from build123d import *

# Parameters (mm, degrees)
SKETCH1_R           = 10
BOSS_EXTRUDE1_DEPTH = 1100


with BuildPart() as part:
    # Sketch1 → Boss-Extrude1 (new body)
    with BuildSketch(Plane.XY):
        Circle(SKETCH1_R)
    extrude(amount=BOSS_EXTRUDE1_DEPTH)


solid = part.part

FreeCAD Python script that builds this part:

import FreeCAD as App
import Part
import Sketcher
Q = App.Units.Quantity

doc = App.newDocument("Part")
body = doc.addObject("PartDesign::Body", "Body")

sketch1 = doc.addObject("Sketcher::SketchObject", "Sketch")
body.addObject(sketch1)
sketch1.AttachmentSupport = (doc.XY_Plane, [""])
sketch1.MapMode = "FlatFace"
sketch1.addGeometry(Part.Circle(App.Vector(0, 0, 0), App.Vector(0, 0, 1), 10), False)
sketch1.addConstraint(Sketcher.Constraint("Coincident", 0, 3, -1, 1))
sketch1.addConstraint(Sketcher.Constraint("Diameter", 0, Q("20 mm")))
pad1 = doc.addObject("PartDesign::Pad", "Pad")
body.addObject(pad1)
pad1.Profile = sketch1
pad1.Length = 1100

doc.recompute()
